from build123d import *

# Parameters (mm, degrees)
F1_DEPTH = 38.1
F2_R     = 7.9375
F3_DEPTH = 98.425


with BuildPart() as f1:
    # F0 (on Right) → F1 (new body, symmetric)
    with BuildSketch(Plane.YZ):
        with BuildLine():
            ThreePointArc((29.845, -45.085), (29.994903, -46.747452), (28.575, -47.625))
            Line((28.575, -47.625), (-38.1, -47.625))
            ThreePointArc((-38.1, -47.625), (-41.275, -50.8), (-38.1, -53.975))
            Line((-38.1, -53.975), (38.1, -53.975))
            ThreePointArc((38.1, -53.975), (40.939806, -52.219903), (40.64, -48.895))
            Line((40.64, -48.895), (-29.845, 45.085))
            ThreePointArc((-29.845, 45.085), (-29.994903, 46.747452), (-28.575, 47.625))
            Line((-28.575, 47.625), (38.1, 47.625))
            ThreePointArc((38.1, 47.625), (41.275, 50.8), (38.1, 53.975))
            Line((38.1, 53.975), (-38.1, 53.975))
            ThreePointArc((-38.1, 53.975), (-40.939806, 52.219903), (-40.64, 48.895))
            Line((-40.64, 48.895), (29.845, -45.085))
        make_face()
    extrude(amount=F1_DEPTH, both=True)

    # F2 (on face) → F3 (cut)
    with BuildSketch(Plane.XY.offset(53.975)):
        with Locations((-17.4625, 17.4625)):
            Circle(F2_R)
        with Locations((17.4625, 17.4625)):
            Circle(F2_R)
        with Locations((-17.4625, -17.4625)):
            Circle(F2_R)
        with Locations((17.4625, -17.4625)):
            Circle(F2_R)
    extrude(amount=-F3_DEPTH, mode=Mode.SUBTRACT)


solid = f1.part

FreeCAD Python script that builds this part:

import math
import FreeCAD as App
import Part
import Sketcher

V = App.Vector
Q = App.Units.Quantity

doc = App.newDocument("Part")
body = doc.addObject("PartDesign::Body", "Body")

# Sketch on YZ plane
sketch1 = body.newObject("Sketcher::SketchObject", "Sketch")
sketch1.AttachmentSupport = (doc.getObject("YZ_Plane"), [""])
sketch1.MapMode = "FlatFace"
sketch1.addGeometry([
    Part.ArcOfCircle(Part.Circle(V(28.6, -46, 0), V(0, 0, 1), 1.6), math.radians(-90), math.radians(37)),  # 0
    Part.LineSegment(V(28.6, -47.6, 0), V(-38.1, -47.6, 0)),  # 1
    Part.ArcOfCircle(Part.Circle(V(-38.1, -50.8, 0), V(0, 0, 1), 3.2), math.radians(90), math.radians(270)),  # 2
    Part.LineSegment(V(-38.1, -54, 0), V(38.1, -54, 0)),  # 3
    Part.ArcOfCircle(Part.Circle(V(38.1, -50.8, 0), V(0, 0, 1), 3.2), math.radians(-90), math.radians(37)),  # 4
    Part.LineSegment(V(40.6, -48.9, 0), V(-29.8, 45.1, 0)),  # 5
    Part.ArcOfCircle(Part.Circle(V(-28.6, 46, 0), V(0, 0, 1), 1.6), math.radians(90), math.radians(217)),  # 6
    Part.LineSegment(V(-28.6, 47.6, 0), V(38.1, 47.6, 0)),  # 7
    Part.ArcOfCircle(Part.Circle(V(38.1, 50.8, 0), V(0, 0, 1), 3.2), math.radians(-90), math.radians(90)),  # 8
    Part.LineSegment(V(38.1, 54, 0), V(-38.1, 54, 0)),  # 9
    Part.ArcOfCircle(Part.Circle(V(-38.1, 50.8, 0), V(0, 0, 1), 3.2), math.radians(90), math.radians(217)),  # 10
    Part.LineSegment(V(-40.6, 48.9, 0), V(29.8, -45.1, 0)),  # 11
], False)
sketch1.addConstraint([
    Sketcher.Constraint("Tangent", 0, 1, 1, 1),
    Sketcher.Constraint("Tangent", 1, 2, 2, 1),
    Sketcher.Constraint("Tangent", 2, 2, 3, 1),
    Sketcher.Constraint("Tangent", 3, 2, 4, 1),
    Sketcher.Constraint("Tangent", 4, 2, 5, 1),
    Sketcher.Constraint("Tangent", 5, 2, 6, 2),
    Sketcher.Constraint("Tangent", 6, 1, 7, 1),
    Sketcher.Constraint("Tangent", 7, 2, 8, 1),
    Sketcher.Constraint("Tangent", 8, 2, 9, 1),
    Sketcher.Constraint("Tangent", 9, 2, 10, 1),
    Sketcher.Constraint("Tangent", 10, 2, 11, 1),
    Sketcher.Constraint("Tangent", 11, 2, 0, 2),
    Sketcher.Constraint("Horizontal", 1),
    Sketcher.Constraint("Horizontal", 3),
    Sketcher.Constraint("Horizontal", 7),
    Sketcher.Constraint("Horizontal", 9),
    Sketcher.Constraint("Equal", 2, 4),
    Sketcher.Constraint("Equal", 0, 6),
    Sketcher.Constraint("Equal", 4, 8),
    Sketcher.Constraint("Equal", 8, 10),
    Sketcher.Constraint("Symmetric", 0, 3, 6, 3, -1, 1),
    Sketcher.Constraint("Parallel", 5, 11),
    Sketcher.Constraint("Vertical", 4, 3, 8, 3),
    Sketcher.Constraint("Vertical", 2, 3, 10, 3),
    Sketcher.Constraint("DistanceX", 3, 1, 3, 2, Q("3 in")),
    Sketcher.Constraint("DistanceY", 2, 3, -1, 1, Q("2 in")),
    Sketcher.Constraint("Radius", 0, Q("0.0625 in")),
    Sketcher.Constraint("Radius", 2, Q("0.125 in")),
    Sketcher.Constraint("DistanceX", -1, 1, 4, 2, Q("1.6 in")),
])
pad1 = body.newObject("PartDesign::Pad", "Pad")
pad1.Profile = sketch1
pad1.Length = Q("3 in")
pad1.Midplane = True

# Sketch on XY plane
sketch2 = body.newObject("Sketcher::SketchObject", "Sketch001")
sketch2.AttachmentSupport = (doc.getObject("XY_Plane"), [""])
sketch2.MapMode = "FlatFace"
sketch2.AttachmentOffset = App.Placement(V(0, 0, 2.125 * 25.4), App.Rotation())
sketch2.addGeometry([
    Part.Circle(V(-17, 17, 0), V(0, 0, 1), 8),
    Part.Circle(V(17, 17, 0), V(0, 0, 1), 8),
    Part.Circle(V(-17, -17, 0), V(0, 0, 1), 8),
    Part.Circle(V(17, -17, 0), V(0, 0, 1), 8),
], False)
sketch2.addConstraint([
    Sketcher.Constraint("Equal", 0, 1),
    Sketcher.Constraint("Equal", 1, 2),
    Sketcher.Constraint("Equal", 2, 3),
    Sketcher.Constraint("Symmetric", 1, 3, 2, 3, -1, 1),
    Sketcher.Constraint("Symmetric", 0, 3, 3, 3, -1, 1),
    Sketcher.Constraint("Symmetric", 0, 3, 1, 3, -2),
    Sketcher.Constraint("Diameter", 0, Q("0.625 in")),
    Sketcher.Constraint("DistanceX", 0, 3, -1, 1, Q("0.6875 in")),
    Sketcher.Constraint("DistanceY", -1, 1, 0, 3, Q("0.6875 in")),
])
pocket1 = body.newObject("PartDesign::Pocket", "Pocket")
pocket1.Profile = sketch2
pocket1.Length = Q("3.875 in")

doc.recompute()
